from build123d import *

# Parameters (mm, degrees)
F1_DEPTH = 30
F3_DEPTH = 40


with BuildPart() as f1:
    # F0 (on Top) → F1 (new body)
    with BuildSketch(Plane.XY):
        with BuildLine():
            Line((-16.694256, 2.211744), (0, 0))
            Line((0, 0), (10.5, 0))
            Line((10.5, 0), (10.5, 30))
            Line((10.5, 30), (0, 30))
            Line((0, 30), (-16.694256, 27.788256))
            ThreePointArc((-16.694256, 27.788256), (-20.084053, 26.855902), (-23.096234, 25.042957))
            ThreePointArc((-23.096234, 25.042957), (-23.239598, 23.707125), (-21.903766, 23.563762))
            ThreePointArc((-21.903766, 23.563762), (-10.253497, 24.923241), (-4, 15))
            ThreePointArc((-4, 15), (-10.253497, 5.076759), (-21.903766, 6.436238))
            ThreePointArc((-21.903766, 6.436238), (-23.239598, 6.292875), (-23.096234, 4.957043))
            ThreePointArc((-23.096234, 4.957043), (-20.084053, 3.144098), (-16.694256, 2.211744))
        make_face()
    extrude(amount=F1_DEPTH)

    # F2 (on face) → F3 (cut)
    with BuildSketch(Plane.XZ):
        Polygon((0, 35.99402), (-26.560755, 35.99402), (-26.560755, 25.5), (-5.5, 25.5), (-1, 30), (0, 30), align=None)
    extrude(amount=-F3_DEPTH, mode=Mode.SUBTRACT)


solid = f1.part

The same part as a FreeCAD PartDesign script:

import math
import FreeCAD as App
import Part
import Sketcher

V = App.Vector
Q = App.Units.Quantity


def add_polygon(sketch, points):
    """Adds a closed chain of lines whose ends are joined by coincident constraints."""
    first, n = sketch.GeometryCount, len(points)
    for a, b in zip(points, points[1:] + points[:1]):
        sketch.addGeometry(Part.LineSegment(App.Vector(*a, 0), App.Vector(*b, 0)), False)
    for i in range(n):
        sketch.addConstraint(Sketcher.Constraint("Coincident", first + i, 2, first + (i + 1) % n, 1))

doc = App.newDocument("Part")
body = doc.addObject("PartDesign::Body", "Body")

sketch1 = body.newObject("Sketcher::SketchObject", "Sketch")
sketch1.AttachmentSupport = (doc.getObject("XY_Plane"), [""])
sketch1.MapMode = "FlatFace"
sketch1.addGeometry(Part.LineSegment(V(-16.7, 2.2, 0), V(0, 0, 0)), False)
sketch1.addGeometry(Part.LineSegment(V(0, 0, 0), V(10.5, 0, 0)), False)
sketch1.addGeometry(Part.LineSegment(V(10.5, 0, 0), V(10.5, 30, 0)), False)
sketch1.addGeometry(Part.LineSegment(V(10.5, 30, 0), V(0, 30, 0)), False)
sketch1.addGeometry(Part.LineSegment(V(0, 30, 0), V(-16.7, 27.8, 0)), False)
sketch1.addGeometry(Part.ArcOfCircle(Part.Circle(V(-15, 15, 0), V(0, 0, 1), 12.9), math.radians(98), math.radians(129)), False)
sketch1.addGeometry(Part.ArcOfCircle(Part.Circle(V(-22.5, 24.3, 0), V(0, 0, 1), 0.9), math.radians(129), math.radians(309)), False)
sketch1.addGeometry(Part.ArcOfCircle(Part.Circle(V(-15, 15, 0), V(0, 0, 1), 11), math.radians(0), math.radians(129)), False)
sketch1.addGeometry(Part.ArcOfCircle(Part.Circle(V(-15, 15, 0), V(0, 0, 1), 11), math.radians(-129), math.radians(0)), False)
sketch1.addGeometry(Part.ArcOfCircle(Part.Circle(V(-22.5, 5.7, 0), V(0, 0, 1), 0.9), math.radians(51), math.radians(231)), False)
sketch1.addGeometry(Part.ArcOfCircle(Part.Circle(V(-15, 15, 0), V(0, 0, 1), 12.9), math.radians(-129), math.radians(-98)), False)
sketch1.addConstraint(Sketcher.Constraint("Coincident", 0, 2, 1, 1))
sketch1.addConstraint(Sketcher.Constraint("Coincident", 1, 2, 2, 1))
sketch1.addConstraint(Sketcher.Constraint("Coincident", 2, 2, 3, 1))
sketch1.addConstraint(Sketcher.Constraint("Coincident", 3, 2, 4, 1))
sketch1.addConstraint(Sketcher.Constraint("Tangent", 4, 2, 5, 1))
sketch1.addConstraint(Sketcher.Constraint("Tangent", 5, 2, 6, 1))
sketch1.addConstraint(Sketcher.Constraint("Tangent", 6, 2, 7, 2))
sketch1.addConstraint(Sketcher.Constraint("Tangent", 7, 1, 8, 2))
sketch1.addConstraint(Sketcher.Constraint("Tangent", 8, 1, 9, 1))
sketch1.addConstraint(Sketcher.Constraint("Tangent", 9, 2, 10, 1))
sketch1.addConstraint(Sketcher.Constraint("Tangent", 10, 2, 0, 1))
sketch1.addConstraint(Sketcher.Constraint("Horizontal", 1))
sketch1.addConstraint(Sketcher.Constraint("Vertical", 2))
sketch1.addConstraint(Sketcher.Constraint("Horizontal", 3))
sketch1.addConstraint(Sketcher.Constraint("Coincident", 0, 2, -1, 1))
sketch1.addConstraint(Sketcher.Constraint("Equal", 7, 8))
sketch1.addConstraint(Sketcher.Constraint("Equal", 6, 9))
sketch1.addConstraint(Sketcher.Constraint("Equal", 5, 10))
sketch1.addConstraint(Sketcher.Constraint("PointOnObject", 3, 2, -2))
sketch1.addConstraint(Sketcher.Constraint("Horizontal", 8, 3, 7, 1))
sketch1.addConstraint(Sketcher.Constraint("Vertical", 6, 3, 9, 3))
sketch1.addConstraint(Sketcher.Constraint("Vertical", 5, 3, 10, 3))
sketch1.addConstraint(Sketcher.Constraint("Vertical", 4, 2, 10, 2))
sketch1.addConstraint(Sketcher.Constraint("Radius", 7, 11.0))
sketch1.addConstraint(Sketcher.Constraint("DistanceY", 2, 1, 2, 2, 30.0))
sketch1.addConstraint(Sketcher.Constraint("Radius", 6, 0.95))
sketch1.addConstraint(Sketcher.Constraint("DistanceX", 1, 1, 1, 2, 10.5))
sketch1.addConstraint(Sketcher.Constraint("DistanceX", 7, 3, -1, 1, 15.0))
sketch1.addConstraint(Sketcher.Constraint("DistanceX", 6, 3, -1, 1, 22.500001))
sketch1.addConstraint(Sketcher.Constraint("Radius", 5, 12.899985))
sketch1.addConstraint(Sketcher.Constraint("DistanceY", 5, 2, 4, 2, 2.745299))
pad1 = body.newObject("PartDesign::Pad", "Pad")
pad1.Profile = sketch1
pad1.Length = 30

sketch2 = body.newObject("Sketcher::SketchObject", "Sketch001")
sketch2.AttachmentSupport = (doc.getObject("XZ_Plane"), [""])
sketch2.MapMode = "FlatFace"
add_polygon(sketch2, [(0, 36), (-26.6, 36), (-26.6, 25.5), (-5.5, 25.5), (-1, 30), (0, 30)])
sketch2.addConstraint(Sketcher.Constraint("Horizontal", 0))
sketch2.addConstraint(Sketcher.Constraint("Vertical", 1))
sketch2.addConstraint(Sketcher.Constraint("Horizontal", 2))
sketch2.addConstraint(Sketcher.Constraint("Horizontal", 4))
sketch2.addConstraint(Sketcher.Constraint("Vertical", 5))
sketch2.addConstraint(Sketcher.Constraint("PointOnObject", 4, 2, -2))
sketch2.addConstraint(Sketcher.Constraint("DistanceX", 4, 1, 4, 2, 1.0))
sketch2.addConstraint(Sketcher.Constraint("Angle", 3, Q("45 deg")))
sketch2.addConstraint(Sketcher.Constraint("DistanceY", -1, 1, 3, 2, 30.0))
sketch2.addConstraint(Sketcher.Constraint("DistanceY", -1, 1, 1, 2, 25.5))
sketch2.addConstraint(Sketcher.Constraint("DistanceY", 1, 2, 1, 1, 10.49402))
sketch2.addConstraint(Sketcher.Constraint("DistanceX", 0, 2, 0, 1, 26.560755))
pocket1 = body.newObject("PartDesign::Pocket", "Pocket")
pocket1.Profile = sketch2
pocket1.Length = 40

doc.recompute()
